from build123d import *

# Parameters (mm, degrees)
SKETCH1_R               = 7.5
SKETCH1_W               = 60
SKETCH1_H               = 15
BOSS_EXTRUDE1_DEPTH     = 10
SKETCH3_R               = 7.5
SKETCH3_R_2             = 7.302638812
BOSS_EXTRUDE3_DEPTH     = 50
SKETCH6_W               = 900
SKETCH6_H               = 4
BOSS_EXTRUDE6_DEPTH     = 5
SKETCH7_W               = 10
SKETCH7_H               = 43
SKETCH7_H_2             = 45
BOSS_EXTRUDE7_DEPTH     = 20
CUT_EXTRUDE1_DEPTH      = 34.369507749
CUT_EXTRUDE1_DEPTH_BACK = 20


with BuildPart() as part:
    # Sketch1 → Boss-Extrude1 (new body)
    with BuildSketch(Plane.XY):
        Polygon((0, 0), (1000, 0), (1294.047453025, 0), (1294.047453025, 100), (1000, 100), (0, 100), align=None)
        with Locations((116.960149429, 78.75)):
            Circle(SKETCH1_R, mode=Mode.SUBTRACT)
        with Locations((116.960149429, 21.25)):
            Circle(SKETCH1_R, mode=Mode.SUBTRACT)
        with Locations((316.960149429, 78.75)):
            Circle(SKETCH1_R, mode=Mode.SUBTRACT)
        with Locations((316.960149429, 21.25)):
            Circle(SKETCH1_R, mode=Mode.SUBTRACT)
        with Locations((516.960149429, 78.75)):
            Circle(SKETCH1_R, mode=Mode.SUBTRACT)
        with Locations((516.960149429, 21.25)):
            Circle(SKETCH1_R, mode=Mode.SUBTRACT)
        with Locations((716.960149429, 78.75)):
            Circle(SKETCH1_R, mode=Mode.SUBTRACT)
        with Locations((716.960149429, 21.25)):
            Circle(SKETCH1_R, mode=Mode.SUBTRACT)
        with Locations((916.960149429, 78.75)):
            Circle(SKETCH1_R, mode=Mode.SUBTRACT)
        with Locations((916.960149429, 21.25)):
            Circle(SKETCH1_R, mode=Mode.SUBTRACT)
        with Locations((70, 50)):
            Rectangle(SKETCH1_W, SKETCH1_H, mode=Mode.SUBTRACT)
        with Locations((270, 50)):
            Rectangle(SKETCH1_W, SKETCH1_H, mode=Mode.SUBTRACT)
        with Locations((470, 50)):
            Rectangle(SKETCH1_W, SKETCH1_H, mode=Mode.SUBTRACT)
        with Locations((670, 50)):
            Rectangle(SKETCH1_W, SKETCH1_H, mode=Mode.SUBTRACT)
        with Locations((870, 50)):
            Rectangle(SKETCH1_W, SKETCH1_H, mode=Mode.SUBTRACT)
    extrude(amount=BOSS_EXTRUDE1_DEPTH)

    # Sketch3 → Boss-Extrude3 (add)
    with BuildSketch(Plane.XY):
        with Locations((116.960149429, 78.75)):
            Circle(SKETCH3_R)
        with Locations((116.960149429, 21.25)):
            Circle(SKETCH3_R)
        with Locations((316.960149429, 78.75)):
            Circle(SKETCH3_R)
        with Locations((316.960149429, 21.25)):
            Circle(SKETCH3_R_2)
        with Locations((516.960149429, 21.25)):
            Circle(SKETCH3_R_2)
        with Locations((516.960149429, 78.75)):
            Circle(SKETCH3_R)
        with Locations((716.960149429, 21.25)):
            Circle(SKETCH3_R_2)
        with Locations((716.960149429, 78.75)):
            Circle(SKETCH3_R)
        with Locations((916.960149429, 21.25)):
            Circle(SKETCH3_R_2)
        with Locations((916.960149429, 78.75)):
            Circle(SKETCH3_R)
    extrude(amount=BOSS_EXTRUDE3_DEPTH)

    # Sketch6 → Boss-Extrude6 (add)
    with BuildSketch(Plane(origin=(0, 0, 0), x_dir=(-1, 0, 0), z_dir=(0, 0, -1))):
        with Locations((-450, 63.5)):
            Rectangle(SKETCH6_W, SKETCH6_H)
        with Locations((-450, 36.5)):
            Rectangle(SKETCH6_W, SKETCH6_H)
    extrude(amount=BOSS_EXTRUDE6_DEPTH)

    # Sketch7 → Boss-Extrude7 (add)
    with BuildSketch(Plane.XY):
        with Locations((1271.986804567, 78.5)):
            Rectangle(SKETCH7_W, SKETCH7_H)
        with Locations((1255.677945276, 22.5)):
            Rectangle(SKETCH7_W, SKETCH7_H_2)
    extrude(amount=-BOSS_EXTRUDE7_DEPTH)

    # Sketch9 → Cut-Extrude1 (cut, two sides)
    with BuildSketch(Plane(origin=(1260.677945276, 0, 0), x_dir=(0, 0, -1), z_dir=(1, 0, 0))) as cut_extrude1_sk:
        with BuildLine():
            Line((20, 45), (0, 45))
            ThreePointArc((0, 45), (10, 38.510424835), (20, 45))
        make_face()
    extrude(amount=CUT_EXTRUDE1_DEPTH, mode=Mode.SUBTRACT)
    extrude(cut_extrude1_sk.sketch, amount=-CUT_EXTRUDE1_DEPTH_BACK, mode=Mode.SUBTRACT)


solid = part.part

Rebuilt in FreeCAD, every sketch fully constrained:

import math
import FreeCAD as App
import Part
import Sketcher


def add_polygon(sketch, points):
    """Adds a closed chain of lines whose ends are joined by coincident constraints."""
    first, n = sketch.GeometryCount, len(points)
    for a, b in zip(points, points[1:] + points[:1]):
        sketch.addGeometry(Part.LineSegment(App.Vector(*a, 0), App.Vector(*b, 0)), False)
    for i in range(n):
        sketch.addConstraint(Sketcher.Constraint("Coincident", first + i, 2, first + (i + 1) % n, 1))

doc = App.newDocument("Part")
body = doc.addObject("PartDesign::Body", "Body")
body.AllowCompound = True

# Sketch on XY plane
sketch1 = body.newObject("Sketcher::SketchObject", "Sketch")
sketch1.AttachmentSupport = (doc.getObject("XY_Plane"), [""])
sketch1.MapMode = "FlatFace"
add_polygon(sketch1, [(0, 0), (1294, 0), (1294, 100), (0, 100)])  # lines 0-3
sketch1.addGeometry(Part.Circle(App.Vector(117, 21, 0), App.Vector(0, 0, 1), 8), False)  # 4
sketch1.addGeometry(Part.Circle(App.Vector(317, 21, 0), App.Vector(0, 0, 1), 8), False)  # 5
sketch1.addGeometry(Part.Circle(App.Vector(517, 21, 0), App.Vector(0, 0, 1), 8), False)  # 6
sketch1.addGeometry(Part.Circle(App.Vector(717, 21, 0), App.Vector(0, 0, 1), 8), False)  # 7
sketch1.addGeometry(Part.Circle(App.Vector(917, 21, 0), App.Vector(0, 0, 1), 8), False)  # 8
add_polygon(sketch1, [(100, 42), (40, 42), (40, 58), (100, 58)])  # lines 9-12
add_polygon(sketch1, [(300, 42), (240, 42), (240, 58), (300, 58)])  # lines 13-16
add_polygon(sketch1, [(500, 42), (440, 42), (440, 58), (500, 58)])  # lines 17-20
sketch1.addGeometry(Part.Circle(App.Vector(117, 79, 0), App.Vector(0, 0, 1), 8), False)  # 21
sketch1.addGeometry(Part.Circle(App.Vector(317, 79, 0), App.Vector(0, 0, 1), 8), False)  # 22
add_polygon(sketch1, [(700, 42), (640, 42), (640, 58), (700, 58)])  # lines 23-26
add_polygon(sketch1, [(900, 42), (840, 42), (840, 58), (900, 58)])  # lines 27-30
sketch1.addGeometry(Part.Circle(App.Vector(517, 79, 0), App.Vector(0, 0, 1), 8), False)  # 31
sketch1.addGeometry(Part.Circle(App.Vector(717, 79, 0), App.Vector(0, 0, 1), 8), False)  # 32
sketch1.addGeometry(Part.Circle(App.Vector(917, 79, 0), App.Vector(0, 0, 1), 8), False)  # 33
sketch1.addConstraint([
    Sketcher.Constraint("Horizontal", 0),
    Sketcher.Constraint("Vertical", 1),
    Sketcher.Constraint("Horizontal", 2),
    Sketcher.Constraint("Vertical", 3),
    Sketcher.Constraint("Horizontal", 9),
    Sketcher.Constraint("Vertical", 10),
    Sketcher.Constraint("Horizontal", 11),
    Sketcher.Constraint("Vertical", 12),
    Sketcher.Constraint("Horizontal", 13),
    Sketcher.Constraint("Vertical", 14),
    Sketcher.Constraint("Horizontal", 15),
    Sketcher.Constraint("Vertical", 16),
    Sketcher.Constraint("Horizontal", 17),
    Sketcher.Constraint("Vertical", 18),
    Sketcher.Constraint("Horizontal", 19),
    Sketcher.Constraint("Vertical", 20),
    Sketcher.Constraint("Horizontal", 23),
    Sketcher.Constraint("Vertical", 24),
    Sketcher.Constraint("Horizontal", 25),
    Sketcher.Constraint("Vertical", 26),
    Sketcher.Constraint("Horizontal", 27),
    Sketcher.Constraint("Vertical", 28),
    Sketcher.Constraint("Horizontal", 29),
    Sketcher.Constraint("Vertical", 30),
    Sketcher.Constraint("Coincident", 3, 2, -1, 1),
    Sketcher.Constraint("Equal", 4, 5),
    Sketcher.Constraint("Equal", 5, 6),
    Sketcher.Constraint("Equal", 6, 7),
    Sketcher.Constraint("Equal", 7, 8),
    Sketcher.Constraint("Equal", 8, 21),
    Sketcher.Constraint("Equal", 21, 22),
    Sketcher.Constraint("Equal", 22, 31),
    Sketcher.Constraint("Equal", 31, 32),
    Sketcher.Constraint("Equal", 32, 33),
    Sketcher.Constraint("Horizontal", 4, 3, 5, 3),
    Sketcher.Constraint("Horizontal", 5, 3, 6, 3),
    Sketcher.Constraint("Horizontal", 6, 3, 7, 3),
    Sketcher.Constraint("Horizontal", 7, 3, 8, 3),
    Sketcher.Constraint("Horizontal", 21, 3, 22, 3),
    Sketcher.Constraint("Horizontal", 22, 3, 31, 3),
    Sketcher.Constraint("Horizontal", 31, 3, 32, 3),
    Sketcher.Constraint("Horizontal", 32, 3, 33, 3),
    Sketcher.Constraint("Horizontal", 12, 2, 13, 2),
    Sketcher.Constraint("Horizontal", 11, 2, 14, 2),
    Sketcher.Constraint("Horizontal", 16, 2, 17, 2),
    Sketcher.Constraint("Horizontal", 15, 2, 18, 2),
    Sketcher.Constraint("Horizontal", 20, 2, 23, 2),
    Sketcher.Constraint("Horizontal", 19, 2, 24, 2),
    Sketcher.Constraint("Horizontal", 26, 2, 27, 2),
    Sketcher.Constraint("Horizontal", 25, 2, 28, 2),
    Sketcher.Constraint("Vertical", 4, 3, 21, 3),
    Sketcher.Constraint("Vertical", 5, 3, 22, 3),
    Sketcher.Constraint("Vertical", 6, 3, 31, 3),
    Sketcher.Constraint("Vertical", 7, 3, 32, 3),
    Sketcher.Constraint("Vertical", 8, 3, 33, 3),
    Sketcher.Constraint("Equal", 11, 13),
    Sketcher.Constraint("Equal", 15, 17),
    Sketcher.Constraint("Equal", 19, 23),
    Sketcher.Constraint("Equal", 25, 27),
    Sketcher.Constraint("Diameter", 4, 15.0),
    Sketcher.Constraint("DistanceX", 9, 2, 9, 1, 60.0),
    Sketcher.Constraint("DistanceY", 1, 1, 1, 2, 100.0),
    Sketcher.Constraint("DistanceY", 10, 1, 10, 2, 15.0),
    Sketcher.Constraint("DistanceX", -1, 1, 9, 2, 40.0),
    Sketcher.Constraint("DistanceX", -1, 1, 13, 2, 240.0),
    Sketcher.Constraint("DistanceX", -1, 1, 17, 2, 440.0),
    Sketcher.Constraint("DistanceX", -1, 1, 23, 2, 640.0),
    Sketcher.Constraint("DistanceX", -1, 1, 27, 2, 840.0),
    Sketcher.Constraint("DistanceX", 4, 3, 5, 3, 200.0),
    Sketcher.Constraint("DistanceX", 5, 3, 6, 3, 200.0),
    Sketcher.Constraint("DistanceX", 6, 3, 7, 3, 200.0),
    Sketcher.Constraint("DistanceX", 7, 3, 8, 3, 200.0),
    Sketcher.Constraint("DistanceY", -1, 1, 9, 2, 42.5),
    Sketcher.Constraint("DistanceY", 4, 3, 21, 3, 57.5),
    Sketcher.Constraint("DistanceY", -1, 1, 4, 3, 21.25),
    Sketcher.Constraint("DistanceX", 0, 1, 0, 2, 1294.047453),
    Sketcher.Constraint("DistanceX", -1, 1, 4, 3, 116.960149),
])
pad1 = body.newObject("PartDesign::Pad", "Pad")
pad1.Profile = sketch1
pad1.Length = 10

# Sketch on XY plane
sketch2 = body.newObject("Sketcher::SketchObject", "Sketch001")
sketch2.AttachmentSupport = (doc.getObject("XY_Plane"), [""])
sketch2.MapMode = "FlatFace"
sketch2.addGeometry([
    Part.Circle(App.Vector(117, 79, 0), App.Vector(0, 0, 1), 8),  # 0
    Part.Circle(App.Vector(117, 21, 0), App.Vector(0, 0, 1), 8),  # 1
    Part.Circle(App.Vector(317, 79, 0), App.Vector(0, 0, 1), 8),  # 2
    Part.Circle(App.Vector(317, 21, 0), App.Vector(0, 0, 1), 7),  # 3
    Part.Circle(App.Vector(517, 21, 0), App.Vector(0, 0, 1), 7),  # 4
    Part.Circle(App.Vector(517, 79, 0), App.Vector(0, 0, 1), 8),  # 5
    Part.Circle(App.Vector(717, 21, 0), App.Vector(0, 0, 1), 7),  # 6
    Part.Circle(App.Vector(717, 79, 0), App.Vector(0, 0, 1), 8),  # 7
    Part.Circle(App.Vector(917, 21, 0), App.Vector(0, 0, 1), 7),  # 8
    Part.Circle(App.Vector(917, 79, 0), App.Vector(0, 0, 1), 8),  # 9
], False)
sketch2.addConstraint([
    Sketcher.Constraint("Equal", 0, 1),
    Sketcher.Constraint("Equal", 1, 2),
    Sketcher.Constraint("Equal", 3, 4),
    Sketcher.Constraint("Equal", 2, 5),
    Sketcher.Constraint("Equal", 4, 6),
    Sketcher.Constraint("Equal", 5, 7),
    Sketcher.Constraint("Equal", 6, 8),
    Sketcher.Constraint("Equal", 7, 9),
    Sketcher.Constraint("Horizontal", 0, 3, 2, 3),
    Sketcher.Constraint("Horizontal", 1, 3, 3, 3),
    Sketcher.Constraint("Horizontal", 3, 3, 4, 3),
    Sketcher.Constraint("Horizontal", 2, 3, 5, 3),
    Sketcher.Constraint("Horizontal", 4, 3, 6, 3),
    Sketcher.Constraint("Horizontal", 5, 3, 7, 3),
    Sketcher.Constraint("Horizontal", 6, 3, 8, 3),
    Sketcher.Constraint("Horizontal", 7, 3, 9, 3),
    Sketcher.Constraint("Vertical", 0, 3, 1, 3),
    Sketcher.Constraint("Vertical", 2, 3, 3, 3),
    Sketcher.Constraint("Vertical", 4, 3, 5, 3),
    Sketcher.Constraint("Vertical", 6, 3, 7, 3),
    Sketcher.Constraint("Vertical", 8, 3, 9, 3),
    Sketcher.Constraint("Diameter", 0, 15.0),
    Sketcher.Constraint("DistanceX", 0, 3, 2, 3, 200.0),
    Sketcher.Constraint("DistanceX", 3, 3, 4, 3, 200.0),
    Sketcher.Constraint("DistanceX", 4, 3, 6, 3, 200.0),
    Sketcher.Constraint("DistanceX", 6, 3, 8, 3, 200.0),
    Sketcher.Constraint("DistanceY", 1, 3, 0, 3, 57.5),
    Sketcher.Constraint("DistanceY", -1, 1, 0, 3, 78.75),
    Sketcher.Constraint("Diameter", 3, 14.605278),
    Sketcher.Constraint("DistanceX", -1, 1, 0, 3, 116.960149),
])
pad2 = body.newObject("PartDesign::Pad", "Pad001")
pad2.Profile = sketch2
pad2.Length = 50

# Sketch on XY plane
sketch3 = body.newObject("Sketcher::SketchObject", "Sketch002")
sketch3.AttachmentSupport = (doc.getObject("XY_Plane"), [""])
sketch3.MapMode = "FlatFace"
add_polygon(sketch3, [(900, 65.5), (900, 61.5), (0, 61.5), (0, 65.5)])  # lines 0-3
add_polygon(sketch3, [(900, 38.5), (900, 34.5), (0, 34.5), (0, 38.5)])  # lines 4-7
sketch3.addConstraint([
    Sketcher.Constraint("Vertical", 0),
    Sketcher.Constraint("Horizontal", 1),
    Sketcher.Constraint("Vertical", 2),
    Sketcher.Constraint("Horizontal", 3),
    Sketcher.Constraint("Vertical", 4),
    Sketcher.Constraint("Horizontal", 5),
    Sketcher.Constraint("Vertical", 6),
    Sketcher.Constraint("Horizontal", 7),
    Sketcher.Constraint("PointOnObject", 1, 2, -2),
    Sketcher.Constraint("PointOnObject", 5, 2, -2),
    Sketcher.Constraint("Vertical", 3, 2, 4, 2),
    Sketcher.Constraint("Equal", 2, 4),
    Sketcher.Constraint("DistanceX", 1, 2, 1, 1, 900.0),
    Sketcher.Constraint("DistanceY", 0, 2, 0, 1, 4.0),
    Sketcher.Constraint("DistanceY", 4, 2, 0, 2, 27.0),
    Sketcher.Constraint("DistanceY", -1, 1, 0, 2, 61.5),
])
pad3 = body.newObject("PartDesign::Pad", "Pad002")
pad3.Profile = sketch3
pad3.Length = 5
pad3.Reversed = True

# Sketch on XY plane
sketch4 = body.newObject("Sketcher::SketchObject", "Sketch003")
sketch4.AttachmentSupport = (doc.getObject("XY_Plane"), [""])
sketch4.MapMode = "FlatFace"
add_polygon(sketch4, [(1267, 100), (1267, 57), (1277, 57), (1277, 100)])  # lines 0-3
add_polygon(sketch4, [(1251, 45), (1251, 0), (1261, 0), (1261, 45)])  # lines 4-7
sketch4.addConstraint([
    Sketcher.Constraint("Vertical", 0),
    Sketcher.Constraint("Horizontal", 1),
    Sketcher.Constraint("Vertical", 2),
    Sketcher.Constraint("Horizontal", 3),
    Sketcher.Constraint("Vertical", 4),
    Sketcher.Constraint("Horizontal", 5),
    Sketcher.Constraint("Vertical", 6),
    Sketcher.Constraint("Horizontal", 7),
    Sketcher.Constraint("PointOnObject", 4, 2, -1),
    Sketcher.Constraint("Equal", 3, 5),
    Sketcher.Constraint("DistanceX", 1, 1, 1, 2, 10.0),
    Sketcher.Constraint("DistanceY", 0, 2, 0, 1, 43.0),
    Sketcher.Constraint("DistanceY", 4, 2, 4, 1, 45.0),
    Sketcher.Constraint("DistanceY", -1, 1, 0, 2, 57.0),
    Sketcher.Constraint("DistanceX", 4, 2, 0, 2, 16.308859),
    Sketcher.Constraint("DistanceX", -1, 1, 0, 2, 1266.986805),
])
pad4 = body.newObject("PartDesign::Pad", "Pad003")
pad4.Profile = sketch4
pad4.Length = 20
pad4.Reversed = True

# Sketch on YZ plane
sketch5 = body.newObject("Sketcher::SketchObject", "Sketch004")
sketch5.AttachmentSupport = (doc.getObject("YZ_Plane"), [""])
sketch5.MapMode = "FlatFace"
sketch5.AttachmentOffset = App.Placement(App.Vector(0, 0, 1260.677945), App.Rotation())
sketch5.addGeometry([
    Part.LineSegment(App.Vector(45, -20, 0), App.Vector(45, 0, 0)),
    Part.ArcOfCircle(Part.Circle(App.Vector(49, -10, 0), App.Vector(0, 0, 1), 11), math.radians(114), math.radians(246)),
], False)
sketch5.addConstraint([
    Sketcher.Constraint("Coincident", 0, 1, 1, 2),
    Sketcher.Constraint("Coincident", 1, 1, 0, 2),
    Sketcher.Constraint("Vertical", 0),
    Sketcher.Constraint("PointOnObject", 1, 1, -1),
    Sketcher.Constraint("DistanceY", 0, 1, 0, 2, 20.0),
    Sketcher.Constraint("DistanceX", -1, 1, 0, 1, 45.0),
    Sketcher.Constraint("Radius", 1, 10.949452),
])
pocket1 = body.newObject("PartDesign::Pocket", "Pocket")
pocket1.Profile = sketch5
pocket1.Type = "ThroughAll"
pocket1.Midplane = True

doc.recompute()
